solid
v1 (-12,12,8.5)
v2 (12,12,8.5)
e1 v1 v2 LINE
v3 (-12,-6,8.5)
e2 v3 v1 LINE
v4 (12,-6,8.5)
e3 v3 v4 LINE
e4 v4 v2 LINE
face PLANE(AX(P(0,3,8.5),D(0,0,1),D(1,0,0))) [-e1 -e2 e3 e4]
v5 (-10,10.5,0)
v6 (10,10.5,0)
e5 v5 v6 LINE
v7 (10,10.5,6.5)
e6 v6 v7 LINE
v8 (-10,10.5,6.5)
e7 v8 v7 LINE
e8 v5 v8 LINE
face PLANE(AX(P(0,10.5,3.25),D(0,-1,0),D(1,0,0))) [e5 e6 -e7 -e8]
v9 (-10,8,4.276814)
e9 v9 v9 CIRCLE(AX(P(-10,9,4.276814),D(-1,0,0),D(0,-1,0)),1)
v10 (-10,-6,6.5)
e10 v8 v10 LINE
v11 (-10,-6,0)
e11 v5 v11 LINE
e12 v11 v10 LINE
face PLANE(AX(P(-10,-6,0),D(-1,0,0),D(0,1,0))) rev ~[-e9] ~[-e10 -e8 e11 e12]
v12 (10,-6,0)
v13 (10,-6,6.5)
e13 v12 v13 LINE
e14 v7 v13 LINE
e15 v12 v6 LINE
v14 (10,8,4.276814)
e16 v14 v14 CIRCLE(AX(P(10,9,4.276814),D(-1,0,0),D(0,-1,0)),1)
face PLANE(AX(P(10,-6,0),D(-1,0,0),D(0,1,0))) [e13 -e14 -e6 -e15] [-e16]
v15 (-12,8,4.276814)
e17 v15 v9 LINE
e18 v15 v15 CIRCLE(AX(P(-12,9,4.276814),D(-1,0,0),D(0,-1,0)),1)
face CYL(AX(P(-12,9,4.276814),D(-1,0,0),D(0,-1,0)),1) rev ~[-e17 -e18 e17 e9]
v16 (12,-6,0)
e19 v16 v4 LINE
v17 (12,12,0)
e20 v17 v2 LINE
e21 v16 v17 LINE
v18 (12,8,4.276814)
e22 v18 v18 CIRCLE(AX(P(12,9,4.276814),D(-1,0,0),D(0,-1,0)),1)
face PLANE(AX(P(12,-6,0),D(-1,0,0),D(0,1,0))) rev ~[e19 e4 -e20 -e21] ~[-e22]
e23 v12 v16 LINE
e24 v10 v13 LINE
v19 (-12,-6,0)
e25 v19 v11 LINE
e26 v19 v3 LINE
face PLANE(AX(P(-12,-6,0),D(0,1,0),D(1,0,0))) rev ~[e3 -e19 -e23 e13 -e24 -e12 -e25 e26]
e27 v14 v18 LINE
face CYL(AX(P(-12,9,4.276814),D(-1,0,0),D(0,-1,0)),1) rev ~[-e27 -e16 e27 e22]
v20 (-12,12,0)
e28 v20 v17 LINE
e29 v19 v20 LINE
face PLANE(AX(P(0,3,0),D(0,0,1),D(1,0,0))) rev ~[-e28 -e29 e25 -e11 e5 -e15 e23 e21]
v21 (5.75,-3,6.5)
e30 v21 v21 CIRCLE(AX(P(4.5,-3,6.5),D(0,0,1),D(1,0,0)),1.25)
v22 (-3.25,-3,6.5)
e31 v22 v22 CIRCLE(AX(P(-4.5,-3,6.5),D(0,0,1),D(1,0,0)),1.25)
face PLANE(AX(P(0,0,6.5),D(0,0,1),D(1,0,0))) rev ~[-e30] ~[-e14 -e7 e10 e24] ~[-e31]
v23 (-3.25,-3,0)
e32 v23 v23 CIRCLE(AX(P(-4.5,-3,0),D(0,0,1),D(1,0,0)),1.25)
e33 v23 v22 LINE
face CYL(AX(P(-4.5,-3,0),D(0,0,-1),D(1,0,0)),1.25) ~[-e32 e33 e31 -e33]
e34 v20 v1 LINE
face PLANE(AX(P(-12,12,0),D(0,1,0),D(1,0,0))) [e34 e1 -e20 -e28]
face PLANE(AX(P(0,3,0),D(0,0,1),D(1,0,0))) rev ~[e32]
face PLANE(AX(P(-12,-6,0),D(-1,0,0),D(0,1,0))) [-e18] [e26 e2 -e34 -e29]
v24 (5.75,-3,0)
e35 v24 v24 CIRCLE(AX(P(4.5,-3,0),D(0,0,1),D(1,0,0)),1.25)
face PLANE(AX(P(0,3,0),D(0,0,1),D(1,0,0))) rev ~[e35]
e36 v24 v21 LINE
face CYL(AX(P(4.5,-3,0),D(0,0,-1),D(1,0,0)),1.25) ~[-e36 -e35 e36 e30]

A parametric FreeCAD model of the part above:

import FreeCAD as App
import Part
import Sketcher

V = App.Vector
Q = App.Units.Quantity


def add_polygon(sketch, points):
    """Adds a closed chain of lines whose ends are joined by coincident constraints."""
    first, n = sketch.GeometryCount, len(points)
    for a, b in zip(points, points[1:] + points[:1]):
        sketch.addGeometry(Part.LineSegment(App.Vector(*a, 0), App.Vector(*b, 0)), False)
    for i in range(n):
        sketch.addConstraint(Sketcher.Constraint("Coincident", first + i, 2, first + (i + 1) % n, 1))

doc = App.newDocument("Part")
body = doc.addObject("PartDesign::Body", "Body")

# Sketch on XY plane
sketch1 = body.newObject("Sketcher::SketchObject", "Sketch")
sketch1.AttachmentSupport = (doc.getObject("XY_Plane"), [""])
sketch1.MapMode = "FlatFace"
add_polygon(sketch1, [(-12, 12), (-12, -6), (12, -6), (12, 12)])  # lines 0-3
sketch1.addConstraint(Sketcher.Constraint("Vertical", 0))
sketch1.addConstraint(Sketcher.Constraint("Horizontal", 1))
sketch1.addConstraint(Sketcher.Constraint("Vertical", 2))
sketch1.addConstraint(Sketcher.Constraint("Horizontal", 3))
sketch1.addConstraint(Sketcher.Constraint("DistanceX", 1, 1, 1, 2, Q("24 mm")))
sketch1.addConstraint(Sketcher.Constraint("DistanceY", 0, 2, 0, 1, Q("18 mm")))
sketch1.addConstraint(Sketcher.Constraint("DistanceX", 0, 2, -1, 1, Q("12 mm")))
sketch1.addConstraint(Sketcher.Constraint("DistanceY", 0, 2, -1, 1, Q("6 mm")))
pad1 = body.newObject("PartDesign::Pad", "Pad")
pad1.Profile = sketch1
pad1.Length = 8.5

# Sketch on XY plane
sketch2 = body.newObject("Sketcher::SketchObject", "Sketch001")
sketch2.AttachmentSupport = (doc.getObject("XY_Plane"), [""])
sketch2.MapMode = "FlatFace"
add_polygon(sketch2, [(-10, 6), (-10, -6), (10, -6), (10, 6)])  # lines 0-3
sketch2.addGeometry(Part.Circle(V(-4.5, -3, 0), V(0, 0, 1), 1.2), False)  # 4
sketch2.addGeometry(Part.Circle(V(4.5, -3, 0), V(0, 0, 1), 1.2), False)  # 5
sketch2.addConstraint(Sketcher.Constraint("Vertical", 0))
sketch2.addConstraint(Sketcher.Constraint("Horizontal", 1))
sketch2.addConstraint(Sketcher.Constraint("Vertical", 2))
sketch2.addConstraint(Sketcher.Constraint("Horizontal", 3))
sketch2.addConstraint(Sketcher.Constraint("Equal", 4, 5))
sketch2.addConstraint(Sketcher.Constraint("Symmetric", 0, 2, 2, 2, -1, 1))
sketch2.addConstraint(Sketcher.Constraint("Symmetric", 4, 3, 5, 3, -2))
sketch2.addConstraint(Sketcher.Constraint("Diameter", 4, Q("2.5 mm")))
sketch2.addConstraint(Sketcher.Constraint("DistanceX", 1, 1, 1, 2, Q("20 mm")))
sketch2.addConstraint(Sketcher.Constraint("DistanceY", 0, 2, 0, 1, Q("12 mm")))
sketch2.addConstraint(Sketcher.Constraint("DistanceY", 4, 3, -1, 1, Q("3 mm")))
sketch2.addConstraint(Sketcher.Constraint("DistanceX", 4, 3, 5, 3, Q("9 mm")))
pocket1 = body.newObject("PartDesign::Pocket", "Pocket")
pocket1.Profile = sketch2
pocket1.Length = 6.5
pocket1.Reversed = True

# Sketch on YZ plane
sketch3 = body.newObject("Sketcher::SketchObject", "Sketch002")
sketch3.AttachmentSupport = (doc.getObject("YZ_Plane"), [""])
sketch3.MapMode = "FlatFace"
sketch3.AttachmentOffset = App.Placement(V(0, 0, -12), App.Rotation())
sketch3.addGeometry(Part.Circle(V(9, 4.3, 0), V(0, 0, 1), 1), False)
sketch3.addConstraint(Sketcher.Constraint("Diameter", 0, Q("2 mm")))
sketch3.addConstraint(Sketcher.Constraint("DistanceX", -1, 1, 0, 3, Q("9 mm")))
sketch3.addConstraint(Sketcher.Constraint("DistanceY", -1, 1, 0, 3, Q("4.276814 mm")))
pocket2 = body.newObject("PartDesign::Pocket", "Pocket001")
pocket2.Profile = sketch3
pocket2.Length = 25
pocket2.Reversed = True

# Sketch on XZ plane
sketch4 = body.newObject("Sketcher::SketchObject", "Sketch003")
sketch4.AttachmentSupport = (doc.getObject("XZ_Plane"), [""])
sketch4.MapMode = "FlatFace"
sketch4.AttachmentOffset = App.Placement(V(0, 0, -6), App.Rotation())
add_polygon(sketch4, [(-10, 6), (-10, 0), (10, 0), (10, 6)])  # lines 0-3
sketch4.addConstraint(Sketcher.Constraint("Vertical", 0))
sketch4.addConstraint(Sketcher.Constraint("Horizontal", 1))
sketch4.addConstraint(Sketcher.Constraint("Vertical", 2))
sketch4.addConstraint(Sketcher.Constraint("Horizontal", 3))
sketch4.addConstraint(Sketcher.Constraint("Symmetric", 0, 2, 1, 2, -1, 1))
sketch4.addConstraint(Sketcher.Constraint("DistanceX", 1, 1, 1, 2, Q("20 mm")))
sketch4.addConstraint(Sketcher.Constraint("DistanceY", 0, 2, 0, 1, Q("6.5 mm")))
pocket3 = body.newObject("PartDesign::Pocket", "Pocket002")
pocket3.Profile = sketch4
pocket3.Length = 4.5

doc.recompute()
